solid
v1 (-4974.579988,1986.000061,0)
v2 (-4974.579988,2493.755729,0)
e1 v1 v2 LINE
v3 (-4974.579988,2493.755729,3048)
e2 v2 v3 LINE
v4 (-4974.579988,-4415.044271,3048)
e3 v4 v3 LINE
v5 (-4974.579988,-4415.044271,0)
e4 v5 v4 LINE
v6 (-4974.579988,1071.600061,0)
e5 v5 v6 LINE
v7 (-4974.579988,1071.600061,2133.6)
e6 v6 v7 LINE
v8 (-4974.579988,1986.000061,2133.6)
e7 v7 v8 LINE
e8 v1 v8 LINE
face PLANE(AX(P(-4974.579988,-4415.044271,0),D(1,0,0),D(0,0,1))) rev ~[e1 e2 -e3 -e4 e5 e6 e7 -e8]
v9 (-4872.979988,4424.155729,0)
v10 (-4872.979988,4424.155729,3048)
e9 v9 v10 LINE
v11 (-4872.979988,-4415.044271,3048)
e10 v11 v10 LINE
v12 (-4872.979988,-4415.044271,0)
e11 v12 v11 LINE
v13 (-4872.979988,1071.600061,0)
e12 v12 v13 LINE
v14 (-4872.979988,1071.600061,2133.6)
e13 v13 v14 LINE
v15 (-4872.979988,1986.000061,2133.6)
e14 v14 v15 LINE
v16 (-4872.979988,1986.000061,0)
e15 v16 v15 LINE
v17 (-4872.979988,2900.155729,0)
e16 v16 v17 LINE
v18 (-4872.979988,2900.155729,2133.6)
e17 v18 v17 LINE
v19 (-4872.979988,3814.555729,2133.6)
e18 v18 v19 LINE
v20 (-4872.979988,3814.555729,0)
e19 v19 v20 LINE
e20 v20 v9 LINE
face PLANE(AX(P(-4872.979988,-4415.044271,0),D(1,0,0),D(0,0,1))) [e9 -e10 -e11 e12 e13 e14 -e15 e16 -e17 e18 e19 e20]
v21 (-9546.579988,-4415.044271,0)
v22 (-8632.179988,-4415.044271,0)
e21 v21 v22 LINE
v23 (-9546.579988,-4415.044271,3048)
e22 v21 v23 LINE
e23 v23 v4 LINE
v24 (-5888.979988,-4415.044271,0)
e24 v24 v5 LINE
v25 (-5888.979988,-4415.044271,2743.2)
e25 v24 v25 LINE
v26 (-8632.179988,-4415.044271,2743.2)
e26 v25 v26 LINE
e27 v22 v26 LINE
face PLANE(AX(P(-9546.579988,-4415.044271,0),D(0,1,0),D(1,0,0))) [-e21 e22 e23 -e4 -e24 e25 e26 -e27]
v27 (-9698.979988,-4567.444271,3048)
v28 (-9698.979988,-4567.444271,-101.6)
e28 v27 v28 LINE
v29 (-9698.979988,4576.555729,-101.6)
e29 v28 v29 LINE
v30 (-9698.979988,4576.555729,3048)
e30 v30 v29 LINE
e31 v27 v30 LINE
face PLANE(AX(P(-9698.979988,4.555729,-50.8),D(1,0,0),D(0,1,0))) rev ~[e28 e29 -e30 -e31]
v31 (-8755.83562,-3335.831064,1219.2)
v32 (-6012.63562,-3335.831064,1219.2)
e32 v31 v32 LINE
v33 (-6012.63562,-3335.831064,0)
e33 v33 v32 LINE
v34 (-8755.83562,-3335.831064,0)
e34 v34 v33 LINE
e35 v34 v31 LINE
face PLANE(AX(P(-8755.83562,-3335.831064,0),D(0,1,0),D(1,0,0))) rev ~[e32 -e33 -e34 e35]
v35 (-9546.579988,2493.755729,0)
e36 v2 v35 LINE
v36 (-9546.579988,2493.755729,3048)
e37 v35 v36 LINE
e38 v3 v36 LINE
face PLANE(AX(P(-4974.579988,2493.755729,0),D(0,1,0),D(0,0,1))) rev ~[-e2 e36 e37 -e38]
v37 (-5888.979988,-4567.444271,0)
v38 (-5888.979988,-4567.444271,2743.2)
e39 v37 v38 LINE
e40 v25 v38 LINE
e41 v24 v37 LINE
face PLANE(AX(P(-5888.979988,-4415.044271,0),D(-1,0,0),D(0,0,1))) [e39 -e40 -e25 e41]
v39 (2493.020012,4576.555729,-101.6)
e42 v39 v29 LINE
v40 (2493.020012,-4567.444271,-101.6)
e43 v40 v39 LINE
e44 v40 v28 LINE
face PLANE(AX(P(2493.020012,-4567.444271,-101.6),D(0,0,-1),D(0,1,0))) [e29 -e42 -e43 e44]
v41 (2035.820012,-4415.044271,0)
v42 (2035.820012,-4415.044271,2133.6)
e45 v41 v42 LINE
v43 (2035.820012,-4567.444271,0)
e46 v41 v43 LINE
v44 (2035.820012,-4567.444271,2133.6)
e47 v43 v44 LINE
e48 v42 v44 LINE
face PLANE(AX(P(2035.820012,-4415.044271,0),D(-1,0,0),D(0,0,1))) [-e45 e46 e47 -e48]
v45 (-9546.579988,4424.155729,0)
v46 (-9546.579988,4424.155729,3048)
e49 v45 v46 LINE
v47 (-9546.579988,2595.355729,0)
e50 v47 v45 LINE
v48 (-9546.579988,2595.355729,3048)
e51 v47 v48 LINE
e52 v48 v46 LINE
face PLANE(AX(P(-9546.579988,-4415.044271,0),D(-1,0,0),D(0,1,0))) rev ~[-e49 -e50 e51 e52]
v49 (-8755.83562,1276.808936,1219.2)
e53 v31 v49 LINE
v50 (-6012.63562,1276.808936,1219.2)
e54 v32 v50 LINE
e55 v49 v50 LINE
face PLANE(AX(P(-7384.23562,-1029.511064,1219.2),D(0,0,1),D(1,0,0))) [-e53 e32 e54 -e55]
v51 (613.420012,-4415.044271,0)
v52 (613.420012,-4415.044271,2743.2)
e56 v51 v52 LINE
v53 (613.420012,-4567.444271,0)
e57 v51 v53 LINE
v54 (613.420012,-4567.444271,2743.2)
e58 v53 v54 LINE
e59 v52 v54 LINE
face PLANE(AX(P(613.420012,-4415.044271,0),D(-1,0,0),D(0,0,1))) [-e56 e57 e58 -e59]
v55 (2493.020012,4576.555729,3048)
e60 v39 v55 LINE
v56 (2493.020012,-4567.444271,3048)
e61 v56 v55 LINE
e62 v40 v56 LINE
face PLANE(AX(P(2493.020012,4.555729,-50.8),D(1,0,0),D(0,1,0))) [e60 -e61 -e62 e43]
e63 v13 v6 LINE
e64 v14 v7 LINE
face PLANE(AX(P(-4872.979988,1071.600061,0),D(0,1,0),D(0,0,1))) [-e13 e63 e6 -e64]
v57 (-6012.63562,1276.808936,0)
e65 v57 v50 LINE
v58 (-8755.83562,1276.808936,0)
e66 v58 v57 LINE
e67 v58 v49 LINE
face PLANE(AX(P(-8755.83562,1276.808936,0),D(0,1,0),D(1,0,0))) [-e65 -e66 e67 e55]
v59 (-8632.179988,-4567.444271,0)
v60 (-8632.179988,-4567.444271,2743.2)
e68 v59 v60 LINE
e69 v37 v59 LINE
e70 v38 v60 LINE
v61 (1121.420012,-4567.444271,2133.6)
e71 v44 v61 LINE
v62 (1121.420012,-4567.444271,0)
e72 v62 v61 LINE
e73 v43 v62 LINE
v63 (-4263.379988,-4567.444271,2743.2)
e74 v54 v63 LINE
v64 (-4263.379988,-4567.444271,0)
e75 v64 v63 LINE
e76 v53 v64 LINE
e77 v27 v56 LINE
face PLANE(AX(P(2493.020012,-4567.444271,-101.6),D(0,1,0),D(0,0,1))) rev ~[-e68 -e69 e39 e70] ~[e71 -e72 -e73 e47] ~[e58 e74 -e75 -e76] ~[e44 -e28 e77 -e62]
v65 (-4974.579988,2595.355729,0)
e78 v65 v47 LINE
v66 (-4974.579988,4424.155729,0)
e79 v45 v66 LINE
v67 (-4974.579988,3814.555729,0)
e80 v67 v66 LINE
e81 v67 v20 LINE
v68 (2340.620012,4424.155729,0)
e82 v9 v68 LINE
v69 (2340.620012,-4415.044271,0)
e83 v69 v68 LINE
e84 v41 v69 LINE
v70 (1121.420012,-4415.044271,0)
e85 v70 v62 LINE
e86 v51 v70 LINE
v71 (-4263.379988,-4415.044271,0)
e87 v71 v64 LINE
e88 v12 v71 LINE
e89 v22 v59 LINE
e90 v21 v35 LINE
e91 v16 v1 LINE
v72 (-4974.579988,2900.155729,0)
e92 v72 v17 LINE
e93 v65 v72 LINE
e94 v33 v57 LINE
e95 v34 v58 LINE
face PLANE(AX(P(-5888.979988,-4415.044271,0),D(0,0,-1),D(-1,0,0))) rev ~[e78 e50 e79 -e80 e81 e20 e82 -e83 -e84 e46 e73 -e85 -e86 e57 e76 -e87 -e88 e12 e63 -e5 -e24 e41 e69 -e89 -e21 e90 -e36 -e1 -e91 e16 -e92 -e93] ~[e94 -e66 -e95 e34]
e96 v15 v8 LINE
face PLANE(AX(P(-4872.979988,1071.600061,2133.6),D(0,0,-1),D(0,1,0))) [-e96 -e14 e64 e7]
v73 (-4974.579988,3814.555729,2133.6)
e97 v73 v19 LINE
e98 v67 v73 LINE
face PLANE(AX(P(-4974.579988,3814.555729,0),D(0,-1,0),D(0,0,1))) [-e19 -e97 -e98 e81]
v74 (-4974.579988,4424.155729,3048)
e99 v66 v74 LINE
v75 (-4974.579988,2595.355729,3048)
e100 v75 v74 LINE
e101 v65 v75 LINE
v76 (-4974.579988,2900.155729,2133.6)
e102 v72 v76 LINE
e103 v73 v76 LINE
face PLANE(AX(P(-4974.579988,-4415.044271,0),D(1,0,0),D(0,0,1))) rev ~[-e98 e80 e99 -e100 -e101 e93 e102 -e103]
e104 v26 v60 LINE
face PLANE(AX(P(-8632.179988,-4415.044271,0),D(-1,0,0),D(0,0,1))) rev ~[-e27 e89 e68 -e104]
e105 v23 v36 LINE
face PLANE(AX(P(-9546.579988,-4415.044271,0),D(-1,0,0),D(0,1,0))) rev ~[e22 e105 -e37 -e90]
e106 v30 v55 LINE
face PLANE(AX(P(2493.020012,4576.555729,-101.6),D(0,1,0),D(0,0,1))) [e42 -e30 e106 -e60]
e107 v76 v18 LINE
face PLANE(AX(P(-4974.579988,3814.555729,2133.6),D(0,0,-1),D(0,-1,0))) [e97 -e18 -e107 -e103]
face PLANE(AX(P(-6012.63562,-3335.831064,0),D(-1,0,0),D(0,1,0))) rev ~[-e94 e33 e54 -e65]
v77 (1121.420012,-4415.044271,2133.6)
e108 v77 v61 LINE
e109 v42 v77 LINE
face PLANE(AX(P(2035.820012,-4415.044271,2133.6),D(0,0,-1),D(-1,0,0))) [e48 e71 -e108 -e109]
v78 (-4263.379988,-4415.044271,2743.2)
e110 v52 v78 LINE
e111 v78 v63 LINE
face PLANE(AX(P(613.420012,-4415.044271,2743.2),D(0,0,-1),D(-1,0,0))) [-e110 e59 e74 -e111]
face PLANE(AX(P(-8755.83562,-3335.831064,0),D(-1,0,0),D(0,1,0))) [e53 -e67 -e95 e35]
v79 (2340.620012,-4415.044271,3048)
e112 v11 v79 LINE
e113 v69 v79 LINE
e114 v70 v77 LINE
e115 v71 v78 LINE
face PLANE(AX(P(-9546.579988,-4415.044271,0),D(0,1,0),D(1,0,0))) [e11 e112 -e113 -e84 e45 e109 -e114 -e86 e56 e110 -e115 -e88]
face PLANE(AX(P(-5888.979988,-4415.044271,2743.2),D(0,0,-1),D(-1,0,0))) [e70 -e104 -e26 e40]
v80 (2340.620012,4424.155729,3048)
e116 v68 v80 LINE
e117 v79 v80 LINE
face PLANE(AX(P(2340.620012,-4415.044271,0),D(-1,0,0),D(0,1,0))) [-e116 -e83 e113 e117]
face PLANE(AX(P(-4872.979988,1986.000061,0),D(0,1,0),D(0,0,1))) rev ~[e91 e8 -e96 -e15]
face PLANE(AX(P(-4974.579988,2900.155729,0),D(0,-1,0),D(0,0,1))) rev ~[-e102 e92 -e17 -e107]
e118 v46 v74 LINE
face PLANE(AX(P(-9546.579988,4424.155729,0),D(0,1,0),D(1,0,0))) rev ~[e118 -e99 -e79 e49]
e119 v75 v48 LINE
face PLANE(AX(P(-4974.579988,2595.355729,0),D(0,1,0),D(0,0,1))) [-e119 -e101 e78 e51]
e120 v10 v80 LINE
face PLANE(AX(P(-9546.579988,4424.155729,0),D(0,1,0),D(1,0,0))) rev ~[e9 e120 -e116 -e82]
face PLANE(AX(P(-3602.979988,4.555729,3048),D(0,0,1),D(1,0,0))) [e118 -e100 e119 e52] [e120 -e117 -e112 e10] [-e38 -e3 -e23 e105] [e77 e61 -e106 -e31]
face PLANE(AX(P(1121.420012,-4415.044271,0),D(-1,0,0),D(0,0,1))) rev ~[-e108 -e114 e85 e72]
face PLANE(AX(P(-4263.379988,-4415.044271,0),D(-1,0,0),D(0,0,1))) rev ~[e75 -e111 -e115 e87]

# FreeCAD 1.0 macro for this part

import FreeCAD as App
import Part
import Sketcher
from FreeCAD import Vector
Q = App.Units.Quantity


def add_polygon(sketch, points):
    """Adds a closed chain of lines whose ends are joined by coincident constraints."""
    first, n = sketch.GeometryCount, len(points)
    for a, b in zip(points, points[1:] + points[:1]):
        sketch.addGeometry(Part.LineSegment(App.Vector(*a, 0), App.Vector(*b, 0)), False)
    for i in range(n):
        sketch.addConstraint(Sketcher.Constraint("Coincident", first + i, 2, first + (i + 1) % n, 1))

doc = App.newDocument("Part")
params = doc.addObject("Spreadsheet::Sheet", "Params")
for row, (alias, value) in enumerate([
    ("sketch1_width", "480 in"),
    ("sketch1_width2", "468 in"),
    ("sketch1_height", "360 in"),
    ("sketch1_height2", "348 in"),
    ("pad1_length", "120 in"),
    ("sketch2_width", "360 in"),
    ("sketch2_height", "4 in"),
    ("pad2_length", "480 in"),
    ("sketch3_width", "4 in"),
    ("sketch3_height", "120 in"),
    ("sketch4_width", "4 in"),
    ("sketch4_height", "120 in"),
    ("sketch5_width", "108 in"),
    ("pocket1_length", "62 in"),
    ("sketch6_width", "192 in"),
    ("sketch6_height", "108 in"),
    ("pocket2_length", "133 in"),
    ("sketch7_width", "36 in"),
    ("sketch7_height", "84 in"),
    ("pocket3_length", "52 in"),
    ("sketch8_width", "36 in"),
    ("sketch8_height", "84 in"),
    ("pocket4_length", "26 in"),
    ("sketch9_width", "36 in"),
    ("sketch9_height", "84 in"),
    ("pocket5_length", "20 in"),
    ("sketch10_width", "108 in"),
    ("sketch10_height", "181.6 in"),
    ("pad5_length", "48 in"),
], start=1):
    params.set(f"A{row}", alias)
    params.set(f"B{row}", "=" + value)
    params.setAlias(f"B{row}", alias)

body = doc.addObject("PartDesign::Body", "Body")

# Sketch on XY plane
sketch1 = body.newObject("Sketcher::SketchObject", "Sketch")
sketch1.AttachmentSupport = (doc.getObject("XY_Plane"), [""])
sketch1.MapMode = "FlatFace"
add_polygon(sketch1, [(-9699, 4577), (-9699, -4567), (2493, -4567), (2493, 4577)])  # lines 0-3
add_polygon(sketch1, [(2341, -4415), (-9547, -4415), (-9547, 4424), (2341, 4424)])  # lines 4-7
sketch1.addConstraint([
    Sketcher.Constraint("Vertical", 0),
    Sketcher.Constraint("Horizontal", 1),
    Sketcher.Constraint("Vertical", 2),
    Sketcher.Constraint("Horizontal", 3),
    Sketcher.Constraint("Horizontal", 4),
    Sketcher.Constraint("Vertical", 5),
    Sketcher.Constraint("Horizontal", 6),
    Sketcher.Constraint("Vertical", 7),
    Sketcher.Constraint("DistanceX", 1, 1, 1, 2, Q("480 in")),
    Sketcher.Constraint("DistanceX", 4, 2, 4, 1, Q("468 in")),
    Sketcher.Constraint("DistanceY", 0, 2, 0, 1, Q("360 in")),
    Sketcher.Constraint("DistanceY", 5, 1, 5, 2, Q("348 in")),
    Sketcher.Constraint("DistanceX", 0, 2, 4, 2, Q("6 in")),
    Sketcher.Constraint("DistanceY", 0, 2, 4, 2, Q("6 in")),
    Sketcher.Constraint("DistanceY", 0, 2, -1, 1, 4567.444271),
    Sketcher.Constraint("DistanceX", -1, 1, 1, 2, 2493.020012),
])
sketch1.setExpression("Constraints[16]", "Params.sketch1_width")
sketch1.setExpression("Constraints[17]", "Params.sketch1_width2")
sketch1.setExpression("Constraints[18]", "Params.sketch1_height")
sketch1.setExpression("Constraints[19]", "Params.sketch1_height2")
pad1 = body.newObject("PartDesign::Pad", "Pad")
pad1.Profile = sketch1
pad1.setExpression("Length", "Params.pad1_length")

# Sketch on YZ plane
sketch2 = body.newObject("Sketcher::SketchObject", "Sketch001")
sketch2.AttachmentSupport = (doc.getObject("YZ_Plane"), [""])
sketch2.MapMode = "FlatFace"
sketch2.AttachmentOffset = App.Placement(Vector(0, 0, 2493.020012), App.Rotation())
add_polygon(sketch2, [(-4567, 0), (-4567, -102), (4577, -102), (4577, 0)])  # lines 0-3
sketch2.addConstraint([
    Sketcher.Constraint("Vertical", 0),
    Sketcher.Constraint("Horizontal", 1),
    Sketcher.Constraint("Vertical", 2),
    Sketcher.Constraint("Horizontal", 3),
    Sketcher.Constraint("PointOnObject", 2, 2, -1),
    Sketcher.Constraint("DistanceX", 1, 1, 1, 2, Q("360 in")),
    Sketcher.Constraint("DistanceY", 0, 2, 0, 1, Q("4 in")),
    Sketcher.Constraint("DistanceX", 0, 2, -1, 1, 4567.444271),
])
sketch2.setExpression("Constraints[9]", "Params.sketch2_width")
sketch2.setExpression("Constraints[10]", "Params.sketch2_height")
pad2 = body.newObject("PartDesign::Pad", "Pad001")
pad2.Profile = sketch2
pad2.setExpression("Length", "Params.pad2_length")
pad2.Reversed = True

# Sketch on XZ plane
sketch3 = body.newObject("Sketcher::SketchObject", "Sketch002")
sketch3.AttachmentSupport = (doc.getObject("XZ_Plane"), [""])
sketch3.MapMode = "FlatFace"
sketch3.AttachmentOffset = App.Placement(Vector(0, 0, 4415.044271), App.Rotation())
add_polygon(sketch3, [(-4873, 3048), (-4873, 0), (-4975, 0), (-4975, 3048)])  # lines 0-3
sketch3.addConstraint([
    Sketcher.Constraint("Vertical", 0),
    Sketcher.Constraint("Horizontal", 1),
    Sketcher.Constraint("Vertical", 2),
    Sketcher.Constraint("Horizontal", 3),
    Sketcher.Constraint("PointOnObject", 0, 2, -1),
    Sketcher.Constraint("DistanceX", 1, 2, 1, 1, Q("4 in")),
    Sketcher.Constraint("DistanceY", 0, 2, 0, 1, Q("120 in")),
    Sketcher.Constraint("DistanceX", 0, 2, -1, 1, 4872.979988),
])
sketch3.setExpression("Constraints[9]", "Params.sketch3_width")
sketch3.setExpression("Constraints[10]", "Params.sketch3_height")
pad3 = body.newObject("PartDesign::Pad", "Pad002")
pad3.Profile = sketch3
pad3.Type = "UpToLast"
pad3.Reversed = True

# Sketch on YZ plane
sketch4 = body.newObject("Sketcher::SketchObject", "Sketch003")
sketch4.AttachmentSupport = (doc.getObject("YZ_Plane"), [""])
sketch4.MapMode = "FlatFace"
sketch4.AttachmentOffset = App.Placement(Vector(0, 0, -4974.579988), App.Rotation())
add_polygon(sketch4, [(2595, 3048), (2595, 0), (2494, 0), (2494, 3048)])  # lines 0-3
sketch4.addConstraint([
    Sketcher.Constraint("Vertical", 0),
    Sketcher.Constraint("Horizontal", 1),
    Sketcher.Constraint("Vertical", 2),
    Sketcher.Constraint("Horizontal", 3),
    Sketcher.Constraint("PointOnObject", 0, 2, -1),
    Sketcher.Constraint("DistanceX", 1, 2, 1, 1, Q("4 in")),
    Sketcher.Constraint("DistanceY", 0, 2, 0, 1, Q("120 in")),
    Sketcher.Constraint("DistanceX", -1, 1, 0, 2, 2595.355729),
])
sketch4.setExpression("Constraints[9]", "Params.sketch4_width")
sketch4.setExpression("Constraints[10]", "Params.sketch4_height")
pad4 = body.newObject("PartDesign::Pad", "Pad003")
pad4.Profile = sketch4
pad4.Type = "UpToLast"
pad4.Reversed = True

# Sketch on XZ plane
sketch5 = body.newObject("Sketcher::SketchObject", "Sketch004")
sketch5.AttachmentSupport = (doc.getObject("XZ_Plane"), [""])
sketch5.MapMode = "FlatFace"
sketch5.AttachmentOffset = App.Placement(Vector(0, 0, 4415.044271), App.Rotation())
add_polygon(sketch5, [(-5889, 2743), (-5889, 0), (-8632, 0), (-8632, 2743)])  # lines 0-3
sketch5.addConstraint([
    Sketcher.Constraint("Vertical", 0),
    Sketcher.Constraint("Horizontal", 1),
    Sketcher.Constraint("Vertical", 2),
    Sketcher.Constraint("Horizontal", 3),
    Sketcher.Constraint("PointOnObject", 0, 2, -1),
    Sketcher.Constraint("Equal", 3, 0),
    Sketcher.Constraint("DistanceX", 1, 2, 1, 1, Q("108 in")),
    Sketcher.Constraint("DistanceX", 0, 2, -1, 1, 5888.979988),
])
sketch5.setExpression("Constraints[10]", "Params.sketch5_width")
pocket1 = body.newObject("PartDesign::Pocket", "Pocket")
pocket1.Profile = sketch5
pocket1.setExpression("Length", "Params.pocket1_length")
pocket1.Reversed = True

# Sketch on XZ plane
sketch6 = body.newObject("Sketcher::SketchObject", "Sketch005")
sketch6.AttachmentSupport = (doc.getObject("XZ_Plane"), [""])
sketch6.MapMode = "FlatFace"
sketch6.AttachmentOffset = App.Placement(Vector(0, 0, 4415.044271), App.Rotation())
add_polygon(sketch6, [(613, 2743), (613, 0), (-4263, 0), (-4263, 2743)])  # lines 0-3
sketch6.addConstraint([
    Sketcher.Constraint("Vertical", 0),
    Sketcher.Constraint("Horizontal", 1),
    Sketcher.Constraint("Vertical", 2),
    Sketcher.Constraint("Horizontal", 3),
    Sketcher.Constraint("PointOnObject", 0, 2, -1),
    Sketcher.Constraint("DistanceX", 1, 2, 1, 1, Q("192 in")),
    Sketcher.Constraint("DistanceY", 0, 2, 0, 1, Q("108 in")),
    Sketcher.Constraint("DistanceX", -1, 1, 0, 2, 613.420012),
])
sketch6.setExpression("Constraints[9]", "Params.sketch6_width")
sketch6.setExpression("Constraints[10]", "Params.sketch6_height")
pocket2 = body.newObject("PartDesign::Pocket", "Pocket001")
pocket2.Profile = sketch6
pocket2.setExpression("Length", "Params.pocket2_length")
pocket2.Reversed = True

# Sketch on YZ plane
sketch7 = body.newObject("Sketcher::SketchObject", "Sketch006")
sketch7.AttachmentSupport = (doc.getObject("YZ_Plane"), [""])
sketch7.MapMode = "FlatFace"
sketch7.AttachmentOffset = App.Placement(Vector(0, 0, -4974.579988), App.Rotation())
add_polygon(sketch7, [(3815, 2134), (3815, 0), (2900, 0), (2900, 2134)])  # lines 0-3
sketch7.addConstraint([
    Sketcher.Constraint("Vertical", 0),
    Sketcher.Constraint("Horizontal", 1),
    Sketcher.Constraint("Vertical", 2),
    Sketcher.Constraint("Horizontal", 3),
    Sketcher.Constraint("PointOnObject", 0, 2, -1),
    Sketcher.Constraint("DistanceX", 1, 2, 1, 1, Q("36 in")),
    Sketcher.Constraint("DistanceY", 0, 2, 0, 1, Q("84 in")),
    Sketcher.Constraint("DistanceX", -1, 1, 0, 2, 3814.555729),
])
sketch7.setExpression("Constraints[9]", "Params.sketch7_width")
sketch7.setExpression("Constraints[10]", "Params.sketch7_height")
pocket3 = body.newObject("PartDesign::Pocket", "Pocket002")
pocket3.Profile = sketch7
pocket3.setExpression("Length", "Params.pocket3_length")
pocket3.Reversed = True

# Sketch on YZ plane
sketch8 = body.newObject("Sketcher::SketchObject", "Sketch007")
sketch8.AttachmentSupport = (doc.getObject("YZ_Plane"), [""])
sketch8.MapMode = "FlatFace"
sketch8.AttachmentOffset = App.Placement(Vector(0, 0, -4872.979988), App.Rotation())
add_polygon(sketch8, [(1072, 2134), (1072, 0), (1986, 0), (1986, 2134)])  # lines 0-3
sketch8.addConstraint([
    Sketcher.Constraint("Vertical", 0),
    Sketcher.Constraint("Horizontal", 1),
    Sketcher.Constraint("Vertical", 2),
    Sketcher.Constraint("Horizontal", 3),
    Sketcher.Constraint("PointOnObject", 0, 2, -1),
    Sketcher.Constraint("DistanceX", 1, 1, 1, 2, Q("36 in")),
    Sketcher.Constraint("DistanceY", 0, 2, 0, 1, Q("84 in")),
    Sketcher.Constraint("DistanceX", -1, 1, 0, 2, 1071.600061),
])
sketch8.setExpression("Constraints[9]", "Params.sketch8_width")
sketch8.setExpression("Constraints[10]", "Params.sketch8_height")
pocket4 = body.newObject("PartDesign::Pocket", "Pocket003")
pocket4.Profile = sketch8
pocket4.setExpression("Length", "Params.pocket4_length")

# Sketch on XZ plane
sketch9 = body.newObject("Sketcher::SketchObject", "Sketch008")
sketch9.AttachmentSupport = (doc.getObject("XZ_Plane"), [""])
sketch9.MapMode = "FlatFace"
sketch9.AttachmentOffset = App.Placement(Vector(0, 0, 4415.044271), App.Rotation())
add_polygon(sketch9, [(2036, 2134), (2036, 0), (1121, 0), (1121, 2134)])  # lines 0-3
sketch9.addConstraint([
    Sketcher.Constraint("Vertical", 0),
    Sketcher.Constraint("Horizontal", 1),
    Sketcher.Constraint("Vertical", 2),
    Sketcher.Constraint("Horizontal", 3),
    Sketcher.Constraint("PointOnObject", 0, 2, -1),
    Sketcher.Constraint("DistanceX", 1, 2, 1, 1, Q("36 in")),
    Sketcher.Constraint("DistanceY", 0, 2, 0, 1, Q("84 in")),
    Sketcher.Constraint("DistanceX", -1, 1, 0, 2, 2035.820012),
])
sketch9.setExpression("Constraints[9]", "Params.sketch9_width")
sketch9.setExpression("Constraints[10]", "Params.sketch9_height")
pocket5 = body.newObject("PartDesign::Pocket", "Pocket004")
pocket5.Profile = sketch9
pocket5.setExpression("Length", "Params.pocket5_length")
pocket5.Reversed = True

# Sketch on XY plane
sketch10 = body.newObject("Sketcher::SketchObject", "Sketch009")
sketch10.AttachmentSupport = (doc.getObject("XY_Plane"), [""])
sketch10.MapMode = "FlatFace"
add_polygon(sketch10, [(-8756, 1277), (-8756, -3336), (-6013, -3336), (-6013, 1277)])  # lines 0-3
sketch10.addConstraint([
    Sketcher.Constraint("Vertical", 0),
    Sketcher.Constraint("Horizontal", 1),
    Sketcher.Constraint("Vertical", 2),
    Sketcher.Constraint("Horizontal", 3),
    Sketcher.Constraint("DistanceX", 1, 1, 1, 2, Q("108 in")),
    Sketcher.Constraint("DistanceY", 0, 2, 0, 1, Q("181.6 in")),
    Sketcher.Constraint("DistanceX", 0, 2, -1, 1, 8755.83562),
    Sketcher.Constraint("DistanceY", 0, 2, -1, 1, 3335.831064),
])
sketch10.setExpression("Constraints[8]", "Params.sketch10_width")
sketch10.setExpression("Constraints[9]", "Params.sketch10_height")
pad5 = body.newObject("PartDesign::Pad", "Pad004")
pad5.Profile = sketch10
pad5.setExpression("Length", "Params.pad5_length")

doc.recompute()
